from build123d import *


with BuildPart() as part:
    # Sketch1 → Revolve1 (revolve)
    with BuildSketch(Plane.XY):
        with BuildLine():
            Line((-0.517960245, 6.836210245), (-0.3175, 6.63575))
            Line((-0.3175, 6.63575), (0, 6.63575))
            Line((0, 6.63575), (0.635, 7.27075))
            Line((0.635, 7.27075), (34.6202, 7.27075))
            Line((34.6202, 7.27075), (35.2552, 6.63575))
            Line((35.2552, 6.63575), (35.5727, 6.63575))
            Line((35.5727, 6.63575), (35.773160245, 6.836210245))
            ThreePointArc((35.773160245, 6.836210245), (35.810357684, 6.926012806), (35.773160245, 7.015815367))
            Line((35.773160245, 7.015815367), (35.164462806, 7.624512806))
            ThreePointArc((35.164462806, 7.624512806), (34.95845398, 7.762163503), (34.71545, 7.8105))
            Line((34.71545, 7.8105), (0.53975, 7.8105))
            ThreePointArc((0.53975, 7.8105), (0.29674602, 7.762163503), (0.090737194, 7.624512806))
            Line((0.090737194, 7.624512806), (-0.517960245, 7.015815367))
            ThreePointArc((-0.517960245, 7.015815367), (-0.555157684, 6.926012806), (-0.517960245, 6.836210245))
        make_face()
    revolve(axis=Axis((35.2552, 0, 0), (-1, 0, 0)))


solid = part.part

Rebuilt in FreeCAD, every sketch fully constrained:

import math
import FreeCAD as App
import Part
import Sketcher
Q = App.Units.Quantity

doc = App.newDocument("Part")
body = doc.addObject("PartDesign::Body", "Body")

# Sketch on XY plane
sketch1 = body.newObject("Sketcher::SketchObject", "Sketch")
sketch1.AttachmentSupport = (doc.getObject("XY_Plane"), [""])
sketch1.MapMode = "FlatFace"
sketch1.addGeometry([
    Part.LineSegment(App.Vector(-0.52, 6.84, 0), App.Vector(-0.32, 6.64, 0)),  # 0
    Part.LineSegment(App.Vector(-0.32, 6.64, 0), App.Vector(0, 6.64, 0)),  # 1
    Part.LineSegment(App.Vector(0, 6.64, 0), App.Vector(0.64, 7.27, 0)),  # 2
    Part.LineSegment(App.Vector(0.64, 7.27, 0), App.Vector(34.62, 7.27, 0)),  # 3
    Part.LineSegment(App.Vector(34.62, 7.27, 0), App.Vector(35.26, 6.64, 0)),  # 4
    Part.LineSegment(App.Vector(35.26, 6.64, 0), App.Vector(35.57, 6.64, 0)),  # 5
    Part.LineSegment(App.Vector(35.57, 6.64, 0), App.Vector(35.77, 6.84, 0)),  # 6
    Part.ArcOfCircle(Part.Circle(App.Vector(35.68, 6.93, 0), App.Vector(0, 0, 1), 0.13), math.radians(-45), math.radians(45)),  # 7
    Part.LineSegment(App.Vector(35.77, 7.02, 0), App.Vector(35.16, 7.62, 0)),  # 8
    Part.ArcOfCircle(Part.Circle(App.Vector(34.72, 7.18, 0), App.Vector(0, 0, 1), 0.63), math.radians(45), math.radians(90)),  # 9
    Part.LineSegment(App.Vector(34.72, 7.81, 0), App.Vector(0.54, 7.81, 0)),  # 10
    Part.ArcOfCircle(Part.Circle(App.Vector(0.54, 7.18, 0), App.Vector(0, 0, 1), 0.63), math.radians(90), math.radians(135)),  # 11
    Part.LineSegment(App.Vector(0.09, 7.62, 0), App.Vector(-0.52, 7.02, 0)),  # 12
    Part.ArcOfCircle(Part.Circle(App.Vector(-0.43, 6.93, 0), App.Vector(0, 0, 1), 0.13), math.radians(135), math.radians(225)),  # 13
], False)
sketch1.addConstraint([
    Sketcher.Constraint("Coincident", 0, 2, 1, 1),
    Sketcher.Constraint("Coincident", 1, 2, 2, 1),
    Sketcher.Constraint("Coincident", 2, 2, 3, 1),
    Sketcher.Constraint("Coincident", 3, 2, 4, 1),
    Sketcher.Constraint("Coincident", 4, 2, 5, 1),
    Sketcher.Constraint("Coincident", 5, 2, 6, 1),
    Sketcher.Constraint("Tangent", 6, 2, 7, 1),
    Sketcher.Constraint("Tangent", 7, 2, 8, 1),
    Sketcher.Constraint("Tangent", 8, 2, 9, 1),
    Sketcher.Constraint("Tangent", 9, 2, 10, 1),
    Sketcher.Constraint("Tangent", 10, 2, 11, 1),
    Sketcher.Constraint("Tangent", 11, 2, 12, 1),
    Sketcher.Constraint("Tangent", 12, 2, 13, 1),
    Sketcher.Constraint("Tangent", 13, 2, 0, 1),
    Sketcher.Constraint("Horizontal", 1),
    Sketcher.Constraint("Horizontal", 3),
    Sketcher.Constraint("Horizontal", 5),
    Sketcher.Constraint("Horizontal", 10),
    Sketcher.Constraint("Equal", 9, 11),
    Sketcher.Constraint("Equal", 7, 13),
    Sketcher.Constraint("PointOnObject", 1, 2, -2),
    Sketcher.Constraint("Perpendicular", 0, 2),
    Sketcher.Constraint("Perpendicular", 2, 4),
    Sketcher.Constraint("Perpendicular", 4, 6),
    Sketcher.Constraint("Perpendicular", 6, 8),
    Sketcher.Constraint("Perpendicular", 8, 12),
    Sketcher.Constraint("Horizontal", 7, 3, 13, 3),
    Sketcher.Constraint("Horizontal", 1, 2, 4, 2),
    Sketcher.Constraint("Horizontal", 8, 2, 11, 2),
    Sketcher.Constraint("Equal", 1, 5),
    Sketcher.Constraint("Radius", 7, Q("0.005 in")),
    Sketcher.Constraint("Radius", 9, Q("0.025 in")),
    Sketcher.Constraint("DistanceX", 3, 1, 3, 2, Q("1.338 in")),
    Sketcher.Constraint("DistanceX", 1, 1, 1, 2, Q("0.0125 in")),
    Sketcher.Constraint("DistanceX", 10, 2, 10, 1, Q("1.3455 in")),
    Sketcher.Constraint("DistanceX", -1, 1, 2, 2, Q("0.025 in")),
    Sketcher.Constraint("DistanceY", -1, 1, 9, 3, Q("0.2825 in")),
    Sketcher.Constraint("DistanceY", 7, 3, 8, 2, Q("0.0275 in")),
])
revolution = body.newObject("PartDesign::Revolution", "Revolution")
revolution.Profile = sketch1
revolution.ReferenceAxis = (sketch1, ["H_Axis"])
revolution.Angle = 360

doc.recompute()
